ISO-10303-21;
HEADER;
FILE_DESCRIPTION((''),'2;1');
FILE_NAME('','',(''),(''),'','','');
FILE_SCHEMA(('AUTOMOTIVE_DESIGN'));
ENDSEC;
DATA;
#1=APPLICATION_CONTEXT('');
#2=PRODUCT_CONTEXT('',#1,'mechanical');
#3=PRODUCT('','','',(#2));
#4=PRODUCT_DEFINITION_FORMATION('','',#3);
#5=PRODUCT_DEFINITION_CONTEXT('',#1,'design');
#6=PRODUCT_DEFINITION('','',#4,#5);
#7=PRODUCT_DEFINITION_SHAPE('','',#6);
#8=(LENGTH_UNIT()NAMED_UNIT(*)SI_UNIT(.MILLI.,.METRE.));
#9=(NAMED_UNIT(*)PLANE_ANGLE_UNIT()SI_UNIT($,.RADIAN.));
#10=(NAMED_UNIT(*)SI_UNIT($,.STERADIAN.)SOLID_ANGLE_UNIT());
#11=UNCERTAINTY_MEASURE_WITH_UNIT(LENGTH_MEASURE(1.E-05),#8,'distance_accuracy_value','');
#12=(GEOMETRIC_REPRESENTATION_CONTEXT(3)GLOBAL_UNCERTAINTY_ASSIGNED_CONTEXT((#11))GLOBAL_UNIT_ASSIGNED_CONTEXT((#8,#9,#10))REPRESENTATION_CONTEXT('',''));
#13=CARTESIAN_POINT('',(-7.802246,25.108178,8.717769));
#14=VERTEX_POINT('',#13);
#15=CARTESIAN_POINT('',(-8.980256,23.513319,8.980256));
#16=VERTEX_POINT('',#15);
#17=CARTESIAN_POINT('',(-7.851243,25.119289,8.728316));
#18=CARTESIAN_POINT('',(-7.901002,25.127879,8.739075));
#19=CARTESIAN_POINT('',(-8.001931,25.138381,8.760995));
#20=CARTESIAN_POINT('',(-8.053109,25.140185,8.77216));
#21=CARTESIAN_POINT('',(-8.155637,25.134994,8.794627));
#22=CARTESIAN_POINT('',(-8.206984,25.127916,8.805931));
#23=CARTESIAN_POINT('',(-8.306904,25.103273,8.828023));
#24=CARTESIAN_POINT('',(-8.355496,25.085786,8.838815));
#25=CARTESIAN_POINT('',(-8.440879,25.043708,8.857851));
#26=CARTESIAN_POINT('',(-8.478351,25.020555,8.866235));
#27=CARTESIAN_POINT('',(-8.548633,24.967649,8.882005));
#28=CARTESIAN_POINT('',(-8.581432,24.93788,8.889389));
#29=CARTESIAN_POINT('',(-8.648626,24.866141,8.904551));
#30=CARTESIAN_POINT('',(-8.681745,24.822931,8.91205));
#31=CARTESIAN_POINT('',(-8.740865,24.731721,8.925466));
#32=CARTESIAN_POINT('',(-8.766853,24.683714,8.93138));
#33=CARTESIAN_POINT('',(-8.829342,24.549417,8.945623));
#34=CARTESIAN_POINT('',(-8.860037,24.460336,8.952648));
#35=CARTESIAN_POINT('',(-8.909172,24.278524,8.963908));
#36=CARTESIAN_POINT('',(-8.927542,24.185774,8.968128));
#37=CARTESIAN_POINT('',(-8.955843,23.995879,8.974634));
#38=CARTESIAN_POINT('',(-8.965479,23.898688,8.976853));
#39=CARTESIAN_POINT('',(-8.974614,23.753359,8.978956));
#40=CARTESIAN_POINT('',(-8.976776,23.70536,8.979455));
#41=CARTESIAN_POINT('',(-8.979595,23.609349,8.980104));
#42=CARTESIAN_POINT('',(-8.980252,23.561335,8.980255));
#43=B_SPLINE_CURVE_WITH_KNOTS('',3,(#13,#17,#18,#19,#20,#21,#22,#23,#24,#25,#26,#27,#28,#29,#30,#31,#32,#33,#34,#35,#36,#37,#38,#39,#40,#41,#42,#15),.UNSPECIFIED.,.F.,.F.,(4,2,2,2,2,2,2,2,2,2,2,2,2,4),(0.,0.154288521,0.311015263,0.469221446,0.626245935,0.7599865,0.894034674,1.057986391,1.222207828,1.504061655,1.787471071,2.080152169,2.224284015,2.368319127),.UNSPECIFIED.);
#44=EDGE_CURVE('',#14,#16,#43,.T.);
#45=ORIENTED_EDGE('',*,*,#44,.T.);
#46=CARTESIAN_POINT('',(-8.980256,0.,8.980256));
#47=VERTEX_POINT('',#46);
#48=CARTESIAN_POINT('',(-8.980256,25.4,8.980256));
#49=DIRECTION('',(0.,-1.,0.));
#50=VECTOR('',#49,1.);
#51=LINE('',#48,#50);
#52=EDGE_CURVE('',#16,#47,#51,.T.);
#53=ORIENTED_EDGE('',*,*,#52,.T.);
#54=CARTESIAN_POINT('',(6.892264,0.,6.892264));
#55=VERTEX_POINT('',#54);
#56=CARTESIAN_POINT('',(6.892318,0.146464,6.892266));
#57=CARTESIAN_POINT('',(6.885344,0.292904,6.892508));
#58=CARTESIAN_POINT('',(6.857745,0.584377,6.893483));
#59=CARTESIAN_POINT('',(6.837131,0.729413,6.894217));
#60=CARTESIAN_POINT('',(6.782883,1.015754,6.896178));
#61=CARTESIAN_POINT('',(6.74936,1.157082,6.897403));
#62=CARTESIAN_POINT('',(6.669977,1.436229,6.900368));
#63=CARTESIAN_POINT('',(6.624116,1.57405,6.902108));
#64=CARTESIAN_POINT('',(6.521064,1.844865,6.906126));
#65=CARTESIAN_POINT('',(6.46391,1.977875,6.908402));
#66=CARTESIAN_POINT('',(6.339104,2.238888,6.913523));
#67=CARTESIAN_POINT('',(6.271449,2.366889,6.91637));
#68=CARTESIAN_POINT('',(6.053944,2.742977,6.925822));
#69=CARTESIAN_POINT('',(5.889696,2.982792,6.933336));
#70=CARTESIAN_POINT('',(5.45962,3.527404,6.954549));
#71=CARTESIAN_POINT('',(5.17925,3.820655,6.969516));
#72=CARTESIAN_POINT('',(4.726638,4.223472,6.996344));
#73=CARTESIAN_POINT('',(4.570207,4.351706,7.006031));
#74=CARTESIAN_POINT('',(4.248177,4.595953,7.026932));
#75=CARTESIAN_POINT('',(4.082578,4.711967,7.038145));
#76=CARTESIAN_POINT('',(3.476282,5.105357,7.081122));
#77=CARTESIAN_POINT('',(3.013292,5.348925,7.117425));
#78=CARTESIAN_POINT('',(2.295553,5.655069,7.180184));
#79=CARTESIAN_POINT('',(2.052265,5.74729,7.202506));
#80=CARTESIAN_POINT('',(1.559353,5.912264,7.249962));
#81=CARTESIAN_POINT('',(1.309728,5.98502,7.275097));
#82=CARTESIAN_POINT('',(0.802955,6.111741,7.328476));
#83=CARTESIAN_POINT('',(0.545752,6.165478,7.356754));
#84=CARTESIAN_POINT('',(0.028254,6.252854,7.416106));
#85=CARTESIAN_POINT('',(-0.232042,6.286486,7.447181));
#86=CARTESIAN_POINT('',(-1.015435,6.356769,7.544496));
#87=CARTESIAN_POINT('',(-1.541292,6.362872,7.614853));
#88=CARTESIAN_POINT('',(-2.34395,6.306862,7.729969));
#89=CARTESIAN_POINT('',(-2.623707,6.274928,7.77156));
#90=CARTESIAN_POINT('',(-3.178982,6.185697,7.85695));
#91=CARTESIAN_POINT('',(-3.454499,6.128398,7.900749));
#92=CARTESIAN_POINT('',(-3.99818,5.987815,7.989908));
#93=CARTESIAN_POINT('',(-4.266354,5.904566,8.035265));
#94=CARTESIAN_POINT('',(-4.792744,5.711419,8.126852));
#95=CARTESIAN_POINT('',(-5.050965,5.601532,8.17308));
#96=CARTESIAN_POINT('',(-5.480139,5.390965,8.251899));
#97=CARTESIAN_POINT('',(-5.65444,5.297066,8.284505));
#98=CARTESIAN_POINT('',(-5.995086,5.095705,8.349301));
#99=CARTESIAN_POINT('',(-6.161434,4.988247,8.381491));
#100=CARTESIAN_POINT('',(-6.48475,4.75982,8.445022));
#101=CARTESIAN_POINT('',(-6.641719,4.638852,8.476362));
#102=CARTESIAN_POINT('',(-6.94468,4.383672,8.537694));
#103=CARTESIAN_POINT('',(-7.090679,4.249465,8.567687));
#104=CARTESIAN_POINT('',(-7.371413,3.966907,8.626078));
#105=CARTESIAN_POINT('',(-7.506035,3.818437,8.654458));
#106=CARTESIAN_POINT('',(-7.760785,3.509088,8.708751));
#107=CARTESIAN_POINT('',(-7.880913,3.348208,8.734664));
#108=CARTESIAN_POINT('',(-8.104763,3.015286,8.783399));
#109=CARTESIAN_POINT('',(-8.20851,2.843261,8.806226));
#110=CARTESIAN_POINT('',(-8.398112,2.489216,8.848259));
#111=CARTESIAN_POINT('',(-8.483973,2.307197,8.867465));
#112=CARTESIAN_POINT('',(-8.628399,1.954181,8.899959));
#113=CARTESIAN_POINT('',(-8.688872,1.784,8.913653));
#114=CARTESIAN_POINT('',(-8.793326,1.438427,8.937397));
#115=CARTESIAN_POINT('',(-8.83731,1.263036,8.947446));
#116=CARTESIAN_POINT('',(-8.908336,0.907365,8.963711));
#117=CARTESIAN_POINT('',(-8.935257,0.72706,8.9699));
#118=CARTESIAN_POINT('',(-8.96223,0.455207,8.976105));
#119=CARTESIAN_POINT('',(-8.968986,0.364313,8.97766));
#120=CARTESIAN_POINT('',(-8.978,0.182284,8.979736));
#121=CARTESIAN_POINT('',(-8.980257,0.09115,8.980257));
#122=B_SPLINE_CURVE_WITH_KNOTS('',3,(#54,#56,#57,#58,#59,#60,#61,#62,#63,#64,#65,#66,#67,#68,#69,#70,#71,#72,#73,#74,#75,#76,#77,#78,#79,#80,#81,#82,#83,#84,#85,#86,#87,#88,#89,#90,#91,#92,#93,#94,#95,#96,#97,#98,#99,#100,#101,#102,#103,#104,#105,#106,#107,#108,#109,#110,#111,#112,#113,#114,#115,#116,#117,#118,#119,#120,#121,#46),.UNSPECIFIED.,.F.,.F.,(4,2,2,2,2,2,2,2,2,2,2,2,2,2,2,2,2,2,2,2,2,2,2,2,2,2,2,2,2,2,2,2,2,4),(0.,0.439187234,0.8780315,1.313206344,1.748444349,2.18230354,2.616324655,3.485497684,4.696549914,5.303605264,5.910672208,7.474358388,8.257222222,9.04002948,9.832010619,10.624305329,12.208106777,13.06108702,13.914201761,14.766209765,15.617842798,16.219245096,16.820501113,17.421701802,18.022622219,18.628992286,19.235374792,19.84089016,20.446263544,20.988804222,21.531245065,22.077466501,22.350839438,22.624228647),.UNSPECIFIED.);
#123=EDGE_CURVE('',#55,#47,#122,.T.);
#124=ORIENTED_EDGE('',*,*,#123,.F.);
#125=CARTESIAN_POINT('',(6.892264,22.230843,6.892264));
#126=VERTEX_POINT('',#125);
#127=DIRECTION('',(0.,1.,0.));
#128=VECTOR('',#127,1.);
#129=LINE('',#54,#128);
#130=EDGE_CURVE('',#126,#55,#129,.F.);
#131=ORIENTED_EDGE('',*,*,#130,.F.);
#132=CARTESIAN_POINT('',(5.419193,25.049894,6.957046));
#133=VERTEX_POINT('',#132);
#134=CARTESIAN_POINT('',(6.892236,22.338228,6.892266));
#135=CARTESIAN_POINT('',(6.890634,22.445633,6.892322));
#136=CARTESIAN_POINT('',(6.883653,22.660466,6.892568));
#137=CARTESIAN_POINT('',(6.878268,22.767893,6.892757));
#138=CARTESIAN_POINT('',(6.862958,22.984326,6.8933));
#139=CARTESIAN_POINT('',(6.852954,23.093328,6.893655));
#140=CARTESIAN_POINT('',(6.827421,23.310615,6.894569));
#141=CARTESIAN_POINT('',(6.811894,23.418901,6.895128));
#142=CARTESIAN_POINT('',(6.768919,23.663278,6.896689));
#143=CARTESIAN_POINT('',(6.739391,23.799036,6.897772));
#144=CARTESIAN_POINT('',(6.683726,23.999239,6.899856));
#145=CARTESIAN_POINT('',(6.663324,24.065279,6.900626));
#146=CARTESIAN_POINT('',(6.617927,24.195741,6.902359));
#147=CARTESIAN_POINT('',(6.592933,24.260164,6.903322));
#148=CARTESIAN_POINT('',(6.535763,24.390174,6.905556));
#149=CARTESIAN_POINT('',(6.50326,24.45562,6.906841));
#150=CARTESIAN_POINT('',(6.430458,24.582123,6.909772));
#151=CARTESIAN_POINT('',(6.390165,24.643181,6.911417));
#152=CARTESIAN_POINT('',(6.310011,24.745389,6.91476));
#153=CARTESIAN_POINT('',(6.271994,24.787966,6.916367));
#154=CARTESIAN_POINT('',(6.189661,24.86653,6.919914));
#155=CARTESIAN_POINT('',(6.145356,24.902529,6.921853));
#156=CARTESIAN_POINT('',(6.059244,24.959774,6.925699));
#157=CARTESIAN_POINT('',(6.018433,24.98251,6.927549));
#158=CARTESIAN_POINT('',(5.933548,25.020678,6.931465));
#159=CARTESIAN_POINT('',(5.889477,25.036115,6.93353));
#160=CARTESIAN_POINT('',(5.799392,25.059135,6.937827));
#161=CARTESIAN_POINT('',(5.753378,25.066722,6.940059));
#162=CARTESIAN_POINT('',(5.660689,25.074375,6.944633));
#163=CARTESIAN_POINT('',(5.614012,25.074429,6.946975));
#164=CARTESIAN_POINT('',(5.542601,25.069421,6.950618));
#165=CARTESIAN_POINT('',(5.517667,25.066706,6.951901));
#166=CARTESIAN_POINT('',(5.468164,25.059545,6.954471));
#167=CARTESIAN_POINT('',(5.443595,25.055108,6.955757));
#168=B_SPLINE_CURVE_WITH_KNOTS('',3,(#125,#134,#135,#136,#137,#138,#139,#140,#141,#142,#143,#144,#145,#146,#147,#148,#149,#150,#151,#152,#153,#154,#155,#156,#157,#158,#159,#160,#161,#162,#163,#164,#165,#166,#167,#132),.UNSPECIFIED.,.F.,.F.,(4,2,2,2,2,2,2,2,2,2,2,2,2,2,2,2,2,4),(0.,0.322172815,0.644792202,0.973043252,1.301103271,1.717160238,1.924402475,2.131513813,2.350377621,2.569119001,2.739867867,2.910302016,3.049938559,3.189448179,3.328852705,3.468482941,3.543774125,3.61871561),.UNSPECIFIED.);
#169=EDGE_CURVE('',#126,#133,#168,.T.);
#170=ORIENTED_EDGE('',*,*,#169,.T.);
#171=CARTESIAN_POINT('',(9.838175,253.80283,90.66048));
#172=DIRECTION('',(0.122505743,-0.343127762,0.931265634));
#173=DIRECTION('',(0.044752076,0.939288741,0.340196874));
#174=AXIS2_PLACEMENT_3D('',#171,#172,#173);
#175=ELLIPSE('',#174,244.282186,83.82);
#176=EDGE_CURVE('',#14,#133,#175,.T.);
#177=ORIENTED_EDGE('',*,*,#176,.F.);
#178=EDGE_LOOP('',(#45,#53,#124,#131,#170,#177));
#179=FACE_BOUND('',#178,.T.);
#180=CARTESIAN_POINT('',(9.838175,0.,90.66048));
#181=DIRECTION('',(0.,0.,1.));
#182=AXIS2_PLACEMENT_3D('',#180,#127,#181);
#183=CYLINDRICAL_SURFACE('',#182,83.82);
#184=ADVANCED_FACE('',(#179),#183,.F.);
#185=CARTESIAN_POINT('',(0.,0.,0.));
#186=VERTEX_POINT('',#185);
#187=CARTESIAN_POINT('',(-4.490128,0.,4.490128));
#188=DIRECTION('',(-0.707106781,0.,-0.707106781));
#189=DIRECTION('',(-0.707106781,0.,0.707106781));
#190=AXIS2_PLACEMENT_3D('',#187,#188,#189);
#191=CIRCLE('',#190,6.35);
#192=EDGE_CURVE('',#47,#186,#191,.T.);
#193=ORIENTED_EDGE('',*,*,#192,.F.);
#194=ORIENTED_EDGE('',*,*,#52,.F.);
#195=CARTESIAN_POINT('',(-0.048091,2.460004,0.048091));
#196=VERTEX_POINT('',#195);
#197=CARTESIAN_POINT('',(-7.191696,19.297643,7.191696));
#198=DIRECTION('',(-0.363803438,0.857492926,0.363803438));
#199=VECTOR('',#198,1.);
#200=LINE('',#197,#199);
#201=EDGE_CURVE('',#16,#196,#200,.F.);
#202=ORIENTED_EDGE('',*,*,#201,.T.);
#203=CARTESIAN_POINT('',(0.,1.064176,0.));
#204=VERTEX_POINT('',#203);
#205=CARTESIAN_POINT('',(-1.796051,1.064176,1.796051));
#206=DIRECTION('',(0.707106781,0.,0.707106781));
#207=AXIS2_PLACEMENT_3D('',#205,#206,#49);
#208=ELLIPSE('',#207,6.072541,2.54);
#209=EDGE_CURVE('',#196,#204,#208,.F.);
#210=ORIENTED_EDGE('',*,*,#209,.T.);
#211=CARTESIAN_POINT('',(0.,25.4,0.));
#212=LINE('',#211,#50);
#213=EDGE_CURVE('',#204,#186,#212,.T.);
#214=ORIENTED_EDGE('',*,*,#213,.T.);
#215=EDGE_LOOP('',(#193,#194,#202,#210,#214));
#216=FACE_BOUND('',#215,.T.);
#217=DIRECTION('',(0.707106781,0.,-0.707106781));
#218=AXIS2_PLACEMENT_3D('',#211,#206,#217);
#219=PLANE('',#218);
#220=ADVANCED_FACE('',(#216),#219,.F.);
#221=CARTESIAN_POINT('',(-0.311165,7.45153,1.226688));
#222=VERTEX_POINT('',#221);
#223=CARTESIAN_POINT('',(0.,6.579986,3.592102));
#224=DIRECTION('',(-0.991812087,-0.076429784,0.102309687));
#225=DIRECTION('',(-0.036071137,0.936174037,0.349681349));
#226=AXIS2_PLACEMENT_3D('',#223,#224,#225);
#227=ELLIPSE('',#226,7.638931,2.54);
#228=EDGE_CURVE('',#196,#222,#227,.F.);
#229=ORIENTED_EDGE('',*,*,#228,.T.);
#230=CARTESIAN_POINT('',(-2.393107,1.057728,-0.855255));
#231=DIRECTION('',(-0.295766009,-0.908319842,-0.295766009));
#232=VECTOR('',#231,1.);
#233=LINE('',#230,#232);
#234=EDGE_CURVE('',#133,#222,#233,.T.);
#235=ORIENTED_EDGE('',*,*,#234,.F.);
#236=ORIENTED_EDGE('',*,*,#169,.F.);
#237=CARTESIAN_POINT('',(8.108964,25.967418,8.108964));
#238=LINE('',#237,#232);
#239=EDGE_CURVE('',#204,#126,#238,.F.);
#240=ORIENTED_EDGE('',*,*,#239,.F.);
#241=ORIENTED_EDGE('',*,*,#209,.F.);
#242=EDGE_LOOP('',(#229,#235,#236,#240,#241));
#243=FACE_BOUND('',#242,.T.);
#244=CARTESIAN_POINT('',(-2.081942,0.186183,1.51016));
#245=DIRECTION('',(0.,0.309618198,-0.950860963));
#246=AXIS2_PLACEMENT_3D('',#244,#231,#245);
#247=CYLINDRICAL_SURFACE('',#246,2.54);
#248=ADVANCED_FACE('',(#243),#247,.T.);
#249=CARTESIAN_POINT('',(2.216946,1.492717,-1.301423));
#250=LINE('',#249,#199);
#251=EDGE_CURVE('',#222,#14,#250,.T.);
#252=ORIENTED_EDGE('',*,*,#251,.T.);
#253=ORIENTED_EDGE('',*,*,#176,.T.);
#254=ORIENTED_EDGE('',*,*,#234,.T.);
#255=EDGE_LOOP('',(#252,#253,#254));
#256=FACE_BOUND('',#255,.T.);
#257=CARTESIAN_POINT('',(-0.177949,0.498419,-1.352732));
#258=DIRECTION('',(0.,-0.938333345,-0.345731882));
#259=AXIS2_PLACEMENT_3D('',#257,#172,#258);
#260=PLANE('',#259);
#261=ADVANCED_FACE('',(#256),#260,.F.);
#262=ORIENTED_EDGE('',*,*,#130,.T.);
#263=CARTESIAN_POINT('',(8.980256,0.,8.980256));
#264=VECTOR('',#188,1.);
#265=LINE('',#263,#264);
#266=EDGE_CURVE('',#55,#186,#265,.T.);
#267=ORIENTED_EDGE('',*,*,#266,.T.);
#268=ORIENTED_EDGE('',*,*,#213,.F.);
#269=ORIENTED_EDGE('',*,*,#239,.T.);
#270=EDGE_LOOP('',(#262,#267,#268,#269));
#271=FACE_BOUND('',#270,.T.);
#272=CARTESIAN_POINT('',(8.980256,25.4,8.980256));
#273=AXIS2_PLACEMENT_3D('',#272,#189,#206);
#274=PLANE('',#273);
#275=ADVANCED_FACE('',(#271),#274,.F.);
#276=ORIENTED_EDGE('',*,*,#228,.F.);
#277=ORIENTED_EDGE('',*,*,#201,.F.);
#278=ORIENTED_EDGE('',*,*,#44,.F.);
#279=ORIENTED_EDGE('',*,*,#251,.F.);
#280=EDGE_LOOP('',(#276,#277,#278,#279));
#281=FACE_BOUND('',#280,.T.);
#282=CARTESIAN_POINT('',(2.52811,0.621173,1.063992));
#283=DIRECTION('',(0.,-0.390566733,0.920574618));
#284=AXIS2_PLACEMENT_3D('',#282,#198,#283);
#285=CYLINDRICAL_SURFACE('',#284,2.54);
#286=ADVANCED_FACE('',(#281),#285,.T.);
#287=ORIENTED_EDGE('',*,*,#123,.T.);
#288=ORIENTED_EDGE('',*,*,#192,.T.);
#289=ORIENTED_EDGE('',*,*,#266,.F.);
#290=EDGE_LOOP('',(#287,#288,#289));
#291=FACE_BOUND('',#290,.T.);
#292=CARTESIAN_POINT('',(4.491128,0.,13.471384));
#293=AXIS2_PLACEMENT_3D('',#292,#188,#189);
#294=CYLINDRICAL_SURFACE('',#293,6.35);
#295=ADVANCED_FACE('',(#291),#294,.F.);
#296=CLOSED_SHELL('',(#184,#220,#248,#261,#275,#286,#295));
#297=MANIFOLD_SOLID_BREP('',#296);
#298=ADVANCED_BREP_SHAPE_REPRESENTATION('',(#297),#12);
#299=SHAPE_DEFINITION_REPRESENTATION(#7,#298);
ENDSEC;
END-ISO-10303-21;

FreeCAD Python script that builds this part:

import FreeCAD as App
import Part
import Sketcher
from FreeCAD import Vector
Q = App.Units.Quantity


def edges_at(feature, points):
    """Names of the edges that pass closest to the given points."""
    edges = feature.Shape.Edges
    near = lambda p: min(range(len(edges)), key=lambda i: edges[i].distToShape(Part.Vertex(*p))[0])
    return sorted({f"Edge{near(p) + 1}" for p in points})

doc = App.newDocument("Part")
body = doc.addObject("PartDesign::Body", "Body")

sketch1 = doc.addObject("Sketcher::SketchObject", "Sketch")
body.addObject(sketch1)
sketch1.AttachmentSupport = (doc.XZ_Plane, [""])
sketch1.MapMode = "FlatFace"
sketch1.addGeometry([
    Part.LineSegment(Vector(0, 0, 0), Vector(-9, 9, 0)),
    Part.LineSegment(Vector(-9, 9, 0), Vector(9, 9, 0)),
    Part.LineSegment(Vector(9, 9, 0), Vector(0, 0, 0)),
], False)
sketch1.addConstraint([
    Sketcher.Constraint("Coincident", 0, 2, 1, 1),
    Sketcher.Constraint("Coincident", 1, 2, 2, 1),
    Sketcher.Constraint("Coincident", 2, 2, 0, 1),
    Sketcher.Constraint("Horizontal", 1),
    Sketcher.Constraint("Coincident", 2, 2, -1, 1),
    Sketcher.Constraint("Perpendicular", 0, 2),
    Sketcher.Constraint("Equal", 0, 2),
    Sketcher.Constraint("Distance", 0, Q("0.5 in")),
])
pad1 = doc.addObject("PartDesign::Pad", "Pad")
body.addObject(pad1)
pad1.Profile = sketch1
pad1.Length = Q("1 in")
pad1.Reversed = True

sketch2 = doc.addObject("Sketcher::SketchObject", "Sketch001")
body.addObject(sketch2)
sketch2.Placement = App.Placement(Vector(0, 0, 0), App.Rotation(Vector(-0.707106781, 0, 0.707106781), Vector(0, 0.999999999, 0), Vector(-0.707106781, 0, -0.707106781), "ZXY"))
sketch2.addGeometry(Part.Circle(Vector(6, 0, 0), Vector(0, 0, 1), 6), False)
sketch2.addConstraint([
    Sketcher.Constraint("PointOnObject", 0, 3, -1),
    Sketcher.Constraint("Diameter", 0, Q("0.5 in")),
    Sketcher.Constraint("DistanceX", -1, 1, 0, 3, Q("0.25 in")),
])
pocket1 = doc.addObject("PartDesign::Pocket", "Pocket")
body.addObject(pocket1)
pocket1.Profile = sketch2
pocket1.Length = Q("0.5 in")

sketch3 = doc.addObject("Sketcher::SketchObject", "Sketch002")
body.addObject(sketch3)
sketch3.AttachmentSupport = (doc.XZ_Plane, [""])
sketch3.MapMode = "FlatFace"
sketch3.AttachmentOffset = App.Placement(Vector(0, 0, -1 * 25.4), App.Rotation())
sketch3.addGeometry(Part.Circle(Vector(10, 91, 0), Vector(0, 0, 1), 84), False)
sketch3.addConstraint([
    Sketcher.Constraint("Diameter", 0, Q("6.6 in")),
    Sketcher.Constraint("DistanceY", -1, 1, 0, 3, 90.66048),
    Sketcher.Constraint("DistanceX", -1, 1, 0, 3, 9.838175),
])
pocket2 = doc.addObject("PartDesign::Pocket", "Pocket001")
body.addObject(pocket2)
pocket2.Profile = sketch3
pocket2.Type = "ThroughAll"
pocket2.Reversed = True

sketch4 = doc.addObject("Sketcher::SketchObject", "Sketch003")
body.addObject(sketch4)
sketch4.Placement = App.Placement(Vector(-0.177949, 0.498419, -1.352732), App.Rotation(Vector(0.992467805, 0.042354141, -0.114951223), Vector(0, 0.938333345, 0.345731882), Vector(0.122505743, -0.343127762, 0.931265634), "ZXY"))
sketch4.addGeometry([
    Part.LineSegment(Vector(-9, 4, 0), Vector(7, 4, 0)),
    Part.LineSegment(Vector(7, 4, 0), Vector(7, 26, 0)),
    Part.LineSegment(Vector(7, 26, 0), Vector(-9, 27, 0)),
    Part.LineSegment(Vector(-9, 27, 0), Vector(-9, 4, 0)),
], False)
sketch4.addConstraint([
    Sketcher.Constraint("Coincident", 0, 2, 1, 1),
    Sketcher.Constraint("Coincident", 1, 2, 2, 1),
    Sketcher.Constraint("Coincident", 2, 2, 3, 1),
    Sketcher.Constraint("Coincident", 3, 2, 0, 1),
    Sketcher.Constraint("Horizontal", 0),
    Sketcher.Constraint("Vertical", 1),
    Sketcher.Constraint("Vertical", 3),
    Sketcher.Constraint("DistanceY", 3, 2, 3, 1, 22.96615),
    Sketcher.Constraint("DistanceX", 0, 1, 0, 2, 15.992983),
    Sketcher.Constraint("DistanceY", 1, 1, 1, 2, 22.244265),
    Sketcher.Constraint("DistanceX", -1, 1, 0, 2, 7.123871),
    Sketcher.Constraint("DistanceY", -1, 1, 0, 2, 3.972278),
])
pocket3 = doc.addObject("PartDesign::Pocket", "Pocket002")
body.addObject(pocket3)
pocket3.Profile = sketch4
pocket3.Length = 7.262871
doc.recompute()

fillet = doc.addObject("PartDesign::Fillet", "Fillet")
body.addObject(fillet)
fillet.Base = (pocket3, edges_at(pocket3, [(3.446, 14.817, 3.446), (-4.49, 14.817, 4.49)]))
fillet.Radius = Q("0.1 in")

doc.recompute()
